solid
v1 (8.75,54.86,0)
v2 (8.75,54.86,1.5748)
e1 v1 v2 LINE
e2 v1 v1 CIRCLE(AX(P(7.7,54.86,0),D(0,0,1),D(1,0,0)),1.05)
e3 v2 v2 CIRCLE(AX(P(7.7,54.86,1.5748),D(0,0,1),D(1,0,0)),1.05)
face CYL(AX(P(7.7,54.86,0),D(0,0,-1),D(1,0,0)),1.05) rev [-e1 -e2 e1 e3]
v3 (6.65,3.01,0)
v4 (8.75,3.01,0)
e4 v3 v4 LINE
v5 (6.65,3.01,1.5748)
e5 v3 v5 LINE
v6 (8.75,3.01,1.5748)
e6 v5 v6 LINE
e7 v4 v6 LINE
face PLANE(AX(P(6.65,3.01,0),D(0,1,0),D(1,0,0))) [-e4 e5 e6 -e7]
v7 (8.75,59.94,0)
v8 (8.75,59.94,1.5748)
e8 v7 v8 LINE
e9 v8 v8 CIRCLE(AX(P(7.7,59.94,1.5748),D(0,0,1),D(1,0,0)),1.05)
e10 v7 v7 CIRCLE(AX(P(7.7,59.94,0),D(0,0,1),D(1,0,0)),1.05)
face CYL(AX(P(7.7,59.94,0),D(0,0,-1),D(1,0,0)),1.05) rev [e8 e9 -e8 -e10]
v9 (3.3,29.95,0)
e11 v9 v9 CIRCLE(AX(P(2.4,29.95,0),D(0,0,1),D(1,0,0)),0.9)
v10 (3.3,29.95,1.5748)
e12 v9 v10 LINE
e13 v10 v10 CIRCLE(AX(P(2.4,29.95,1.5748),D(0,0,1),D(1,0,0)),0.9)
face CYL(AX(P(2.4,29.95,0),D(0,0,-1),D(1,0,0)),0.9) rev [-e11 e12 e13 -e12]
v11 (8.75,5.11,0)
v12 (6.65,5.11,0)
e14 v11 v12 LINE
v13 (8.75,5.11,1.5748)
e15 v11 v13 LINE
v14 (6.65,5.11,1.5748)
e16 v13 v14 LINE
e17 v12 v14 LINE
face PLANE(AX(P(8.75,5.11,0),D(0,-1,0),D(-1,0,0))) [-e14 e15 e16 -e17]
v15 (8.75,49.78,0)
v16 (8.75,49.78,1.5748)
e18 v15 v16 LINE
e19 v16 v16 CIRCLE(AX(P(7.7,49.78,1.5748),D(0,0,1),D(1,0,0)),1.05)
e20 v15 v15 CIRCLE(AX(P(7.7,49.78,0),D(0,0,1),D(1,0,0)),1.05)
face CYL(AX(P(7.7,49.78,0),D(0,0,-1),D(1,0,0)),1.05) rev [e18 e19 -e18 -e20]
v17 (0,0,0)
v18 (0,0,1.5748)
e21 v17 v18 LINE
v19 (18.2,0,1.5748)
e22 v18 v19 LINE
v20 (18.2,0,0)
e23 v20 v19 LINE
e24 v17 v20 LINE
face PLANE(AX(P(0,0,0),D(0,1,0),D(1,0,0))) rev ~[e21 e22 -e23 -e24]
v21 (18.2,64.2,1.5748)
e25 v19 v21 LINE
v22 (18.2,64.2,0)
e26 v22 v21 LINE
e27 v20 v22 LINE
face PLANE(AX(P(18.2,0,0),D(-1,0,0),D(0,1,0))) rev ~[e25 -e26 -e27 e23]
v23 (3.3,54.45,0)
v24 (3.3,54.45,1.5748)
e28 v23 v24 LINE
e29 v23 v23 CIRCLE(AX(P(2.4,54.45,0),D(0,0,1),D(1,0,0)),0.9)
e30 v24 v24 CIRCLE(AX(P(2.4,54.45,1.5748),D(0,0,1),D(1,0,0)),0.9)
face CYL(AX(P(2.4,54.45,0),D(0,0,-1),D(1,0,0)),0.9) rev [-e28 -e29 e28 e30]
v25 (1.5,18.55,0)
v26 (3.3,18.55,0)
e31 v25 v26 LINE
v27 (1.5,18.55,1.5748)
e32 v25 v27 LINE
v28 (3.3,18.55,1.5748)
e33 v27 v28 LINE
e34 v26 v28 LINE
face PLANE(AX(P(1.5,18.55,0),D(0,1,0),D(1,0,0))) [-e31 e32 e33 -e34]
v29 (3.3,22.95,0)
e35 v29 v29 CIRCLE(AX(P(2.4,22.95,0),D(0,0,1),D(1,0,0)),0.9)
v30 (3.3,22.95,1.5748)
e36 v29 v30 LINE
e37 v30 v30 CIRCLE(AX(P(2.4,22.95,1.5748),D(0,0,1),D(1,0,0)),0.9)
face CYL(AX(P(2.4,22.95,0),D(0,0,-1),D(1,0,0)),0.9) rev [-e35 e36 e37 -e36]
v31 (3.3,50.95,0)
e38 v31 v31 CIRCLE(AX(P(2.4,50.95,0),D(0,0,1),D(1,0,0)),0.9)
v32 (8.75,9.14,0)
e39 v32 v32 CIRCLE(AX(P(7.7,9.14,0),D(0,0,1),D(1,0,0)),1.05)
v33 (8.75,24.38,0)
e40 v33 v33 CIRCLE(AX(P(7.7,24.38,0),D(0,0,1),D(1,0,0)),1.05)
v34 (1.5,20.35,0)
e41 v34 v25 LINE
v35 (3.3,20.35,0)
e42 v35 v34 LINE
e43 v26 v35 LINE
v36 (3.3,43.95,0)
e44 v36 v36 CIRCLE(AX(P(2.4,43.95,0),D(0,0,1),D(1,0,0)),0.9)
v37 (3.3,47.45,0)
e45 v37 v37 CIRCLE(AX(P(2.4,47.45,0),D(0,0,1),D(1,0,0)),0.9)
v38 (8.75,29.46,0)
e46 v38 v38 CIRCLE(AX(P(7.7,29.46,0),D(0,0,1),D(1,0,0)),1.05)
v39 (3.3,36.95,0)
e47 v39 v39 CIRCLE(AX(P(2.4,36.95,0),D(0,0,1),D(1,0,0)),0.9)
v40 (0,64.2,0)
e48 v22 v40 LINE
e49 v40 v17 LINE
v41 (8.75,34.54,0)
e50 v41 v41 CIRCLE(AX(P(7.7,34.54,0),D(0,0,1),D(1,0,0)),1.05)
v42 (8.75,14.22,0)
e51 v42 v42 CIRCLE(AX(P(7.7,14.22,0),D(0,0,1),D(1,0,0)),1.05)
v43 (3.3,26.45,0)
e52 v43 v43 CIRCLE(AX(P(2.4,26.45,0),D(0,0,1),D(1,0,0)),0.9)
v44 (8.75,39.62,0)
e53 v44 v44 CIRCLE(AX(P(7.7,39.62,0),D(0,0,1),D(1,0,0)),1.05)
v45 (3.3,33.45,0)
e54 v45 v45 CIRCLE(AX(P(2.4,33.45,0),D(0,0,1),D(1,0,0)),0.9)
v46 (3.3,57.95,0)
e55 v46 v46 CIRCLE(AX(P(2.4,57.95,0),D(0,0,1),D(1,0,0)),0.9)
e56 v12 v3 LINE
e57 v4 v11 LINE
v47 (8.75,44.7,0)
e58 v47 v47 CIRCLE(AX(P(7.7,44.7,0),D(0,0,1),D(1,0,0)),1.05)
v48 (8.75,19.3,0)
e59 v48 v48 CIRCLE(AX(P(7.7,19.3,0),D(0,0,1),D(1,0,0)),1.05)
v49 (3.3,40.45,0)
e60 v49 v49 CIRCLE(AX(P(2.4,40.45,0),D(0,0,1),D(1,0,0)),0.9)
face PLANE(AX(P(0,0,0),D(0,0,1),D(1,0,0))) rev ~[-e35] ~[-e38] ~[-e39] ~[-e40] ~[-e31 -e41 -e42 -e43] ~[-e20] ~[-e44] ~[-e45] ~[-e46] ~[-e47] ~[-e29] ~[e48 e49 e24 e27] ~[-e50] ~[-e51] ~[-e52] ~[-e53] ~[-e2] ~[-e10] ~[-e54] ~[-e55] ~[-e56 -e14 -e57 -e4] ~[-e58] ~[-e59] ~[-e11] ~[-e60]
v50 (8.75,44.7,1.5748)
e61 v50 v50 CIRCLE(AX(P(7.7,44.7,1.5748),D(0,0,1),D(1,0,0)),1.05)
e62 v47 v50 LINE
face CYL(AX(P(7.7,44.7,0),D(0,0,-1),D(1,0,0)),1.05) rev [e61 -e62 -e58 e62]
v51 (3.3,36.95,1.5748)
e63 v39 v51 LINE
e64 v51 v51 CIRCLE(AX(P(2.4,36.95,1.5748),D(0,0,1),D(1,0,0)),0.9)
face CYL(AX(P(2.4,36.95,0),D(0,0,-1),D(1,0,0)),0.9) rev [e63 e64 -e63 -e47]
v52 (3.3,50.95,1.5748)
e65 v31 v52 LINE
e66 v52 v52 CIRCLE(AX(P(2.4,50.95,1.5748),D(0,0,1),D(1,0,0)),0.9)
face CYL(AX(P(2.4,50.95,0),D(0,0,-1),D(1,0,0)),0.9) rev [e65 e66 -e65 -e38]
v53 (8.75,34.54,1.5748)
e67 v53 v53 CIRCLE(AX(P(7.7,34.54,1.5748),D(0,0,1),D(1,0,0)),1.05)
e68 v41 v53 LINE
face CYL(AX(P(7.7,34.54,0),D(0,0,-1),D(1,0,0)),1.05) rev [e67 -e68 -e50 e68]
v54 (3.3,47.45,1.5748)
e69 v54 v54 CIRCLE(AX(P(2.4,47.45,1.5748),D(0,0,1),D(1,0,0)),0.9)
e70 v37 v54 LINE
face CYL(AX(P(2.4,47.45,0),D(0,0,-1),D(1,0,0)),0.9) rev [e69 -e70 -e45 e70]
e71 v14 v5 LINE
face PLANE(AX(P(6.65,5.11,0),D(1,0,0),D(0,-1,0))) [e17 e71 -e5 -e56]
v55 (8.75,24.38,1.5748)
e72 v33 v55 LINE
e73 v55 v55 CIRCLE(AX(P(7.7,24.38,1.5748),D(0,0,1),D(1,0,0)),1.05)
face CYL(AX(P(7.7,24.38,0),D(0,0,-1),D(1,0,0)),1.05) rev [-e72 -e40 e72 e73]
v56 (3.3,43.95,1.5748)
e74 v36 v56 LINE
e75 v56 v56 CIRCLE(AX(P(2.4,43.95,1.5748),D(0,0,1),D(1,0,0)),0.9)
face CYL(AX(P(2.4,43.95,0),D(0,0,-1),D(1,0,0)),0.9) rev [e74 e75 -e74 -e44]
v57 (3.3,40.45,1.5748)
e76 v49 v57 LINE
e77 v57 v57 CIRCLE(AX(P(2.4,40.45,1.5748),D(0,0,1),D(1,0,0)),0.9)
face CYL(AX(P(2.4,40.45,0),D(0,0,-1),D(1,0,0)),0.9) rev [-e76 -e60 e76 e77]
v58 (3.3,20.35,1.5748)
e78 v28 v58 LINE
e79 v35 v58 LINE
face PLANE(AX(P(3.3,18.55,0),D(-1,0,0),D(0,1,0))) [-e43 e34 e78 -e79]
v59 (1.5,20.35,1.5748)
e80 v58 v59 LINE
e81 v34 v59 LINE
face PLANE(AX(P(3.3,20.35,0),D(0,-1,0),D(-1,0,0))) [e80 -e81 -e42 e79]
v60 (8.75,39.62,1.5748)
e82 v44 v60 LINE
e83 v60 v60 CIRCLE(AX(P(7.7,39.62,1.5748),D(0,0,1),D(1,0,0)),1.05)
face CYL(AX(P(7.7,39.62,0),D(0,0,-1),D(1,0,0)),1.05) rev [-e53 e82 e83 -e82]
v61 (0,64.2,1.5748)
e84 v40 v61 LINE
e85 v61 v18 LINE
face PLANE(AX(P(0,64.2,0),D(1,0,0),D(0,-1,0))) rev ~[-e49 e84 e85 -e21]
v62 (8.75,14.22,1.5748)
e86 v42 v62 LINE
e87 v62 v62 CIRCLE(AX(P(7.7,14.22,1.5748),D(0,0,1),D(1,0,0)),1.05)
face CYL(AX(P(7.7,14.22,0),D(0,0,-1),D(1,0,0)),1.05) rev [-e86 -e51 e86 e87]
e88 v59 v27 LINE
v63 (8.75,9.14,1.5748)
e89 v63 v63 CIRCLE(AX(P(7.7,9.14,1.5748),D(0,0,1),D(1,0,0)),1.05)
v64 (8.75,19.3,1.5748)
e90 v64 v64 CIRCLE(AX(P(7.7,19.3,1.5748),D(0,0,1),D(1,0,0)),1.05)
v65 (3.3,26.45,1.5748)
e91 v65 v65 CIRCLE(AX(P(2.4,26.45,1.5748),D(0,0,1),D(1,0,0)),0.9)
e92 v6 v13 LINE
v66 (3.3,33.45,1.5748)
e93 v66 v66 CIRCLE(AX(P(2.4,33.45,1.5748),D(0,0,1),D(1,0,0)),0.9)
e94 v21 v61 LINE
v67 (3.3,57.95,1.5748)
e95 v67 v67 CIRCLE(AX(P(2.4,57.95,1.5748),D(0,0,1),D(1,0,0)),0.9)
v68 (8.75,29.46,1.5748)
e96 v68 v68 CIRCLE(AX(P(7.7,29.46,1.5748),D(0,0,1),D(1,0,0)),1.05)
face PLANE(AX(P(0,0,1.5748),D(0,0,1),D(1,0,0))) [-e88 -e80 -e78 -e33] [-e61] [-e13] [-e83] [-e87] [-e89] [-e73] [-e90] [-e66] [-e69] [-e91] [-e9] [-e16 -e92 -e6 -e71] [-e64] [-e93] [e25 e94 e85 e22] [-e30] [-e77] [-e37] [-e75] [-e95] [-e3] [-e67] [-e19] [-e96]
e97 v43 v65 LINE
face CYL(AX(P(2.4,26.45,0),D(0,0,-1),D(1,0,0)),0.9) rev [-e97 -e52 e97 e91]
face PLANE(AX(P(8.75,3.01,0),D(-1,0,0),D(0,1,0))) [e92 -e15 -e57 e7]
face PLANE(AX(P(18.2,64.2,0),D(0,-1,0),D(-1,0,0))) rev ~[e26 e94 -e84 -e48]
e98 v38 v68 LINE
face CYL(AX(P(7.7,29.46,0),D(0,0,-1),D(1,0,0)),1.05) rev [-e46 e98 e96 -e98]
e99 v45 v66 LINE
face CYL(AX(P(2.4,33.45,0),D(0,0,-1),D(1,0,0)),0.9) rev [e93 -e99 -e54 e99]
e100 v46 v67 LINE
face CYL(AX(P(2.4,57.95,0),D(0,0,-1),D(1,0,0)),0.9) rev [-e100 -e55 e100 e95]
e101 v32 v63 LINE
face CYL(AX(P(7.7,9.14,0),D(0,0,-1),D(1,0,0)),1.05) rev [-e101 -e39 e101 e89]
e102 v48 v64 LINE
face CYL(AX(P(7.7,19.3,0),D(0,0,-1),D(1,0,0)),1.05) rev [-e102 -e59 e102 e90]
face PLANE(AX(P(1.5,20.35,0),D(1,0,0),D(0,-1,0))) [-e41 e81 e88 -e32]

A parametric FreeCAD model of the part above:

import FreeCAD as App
import Part
import Sketcher
from FreeCAD import Vector

doc = App.newDocument("Part")
body = doc.addObject("PartDesign::Body", "Body")

# Sketch on XY plane
sketch1 = body.newObject("Sketcher::SketchObject", "Sketch")
sketch1.AttachmentSupport = (doc.getObject("XY_Plane"), [""])
sketch1.MapMode = "FlatFace"
sketch1.addGeometry(Part.LineSegment(Vector(18.2, 0, 0), Vector(18.2, 64.2, 0)), False)
sketch1.addGeometry(Part.LineSegment(Vector(18.2, 64.2, 0), Vector(0, 64.2, 0)), False)
sketch1.addGeometry(Part.LineSegment(Vector(0, 64.2, 0), Vector(0, 0, 0)), False)
sketch1.addGeometry(Part.LineSegment(Vector(0, 0, 0), Vector(18.2, 0, 0)), False)
sketch1.addGeometry(Part.LineSegment(Vector(8.8, 3, 0), Vector(6.7, 3, 0)), False)
sketch1.addGeometry(Part.LineSegment(Vector(6.7, 3, 0), Vector(6.7, 5.1, 0)), False)
sketch1.addGeometry(Part.LineSegment(Vector(6.7, 5.1, 0), Vector(8.8, 5.1, 0)), False)
sketch1.addGeometry(Part.LineSegment(Vector(8.8, 5.1, 0), Vector(8.8, 3, 0)), False)
sketch1.addGeometry(Part.Circle(Vector(7.7, 9.1, 0), Vector(0, 0, 1), 1.1), False)
sketch1.addGeometry(Part.Circle(Vector(7.7, 14.2, 0), Vector(0, 0, 1), 1.1), False)
sketch1.addGeometry(Part.LineSegment(Vector(3.3, 18.6, 0), Vector(1.5, 18.6, 0)), False)
sketch1.addGeometry(Part.LineSegment(Vector(1.5, 18.6, 0), Vector(1.5, 20.4, 0)), False)
sketch1.addGeometry(Part.LineSegment(Vector(1.5, 20.4, 0), Vector(3.3, 20.4, 0)), False)
sketch1.addGeometry(Part.LineSegment(Vector(3.3, 20.4, 0), Vector(3.3, 18.6, 0)), False)
sketch1.addGeometry(Part.Circle(Vector(2.4, 22.9, 0), Vector(0, 0, 1), 0.9), False)
sketch1.addGeometry(Part.Circle(Vector(2.4, 26.4, 0), Vector(0, 0, 1), 0.9), False)
sketch1.addGeometry(Part.Circle(Vector(2.4, 29.9, 0), Vector(0, 0, 1), 0.9), False)
sketch1.addGeometry(Part.Circle(Vector(7.7, 19.3, 0), Vector(0, 0, 1), 1.1), False)
sketch1.addGeometry(Part.Circle(Vector(7.7, 24.4, 0), Vector(0, 0, 1), 1.1), False)
sketch1.addGeometry(Part.Circle(Vector(7.7, 29.5, 0), Vector(0, 0, 1), 1.1), False)
sketch1.addGeometry(Part.Circle(Vector(2.4, 33.5, 0), Vector(0, 0, 1), 0.9), False)
sketch1.addGeometry(Part.Circle(Vector(2.4, 37, 0), Vector(0, 0, 1), 0.9), False)
sketch1.addGeometry(Part.Circle(Vector(2.4, 40.5, 0), Vector(0, 0, 1), 0.9), False)
sketch1.addGeometry(Part.Circle(Vector(2.4, 44, 0), Vector(0, 0, 1), 0.9), False)
sketch1.addGeometry(Part.Circle(Vector(2.4, 47.5, 0), Vector(0, 0, 1), 0.9), False)
sketch1.addGeometry(Part.Circle(Vector(7.7, 34.5, 0), Vector(0, 0, 1), 1.1), False)
sketch1.addGeometry(Part.Circle(Vector(7.7, 39.6, 0), Vector(0, 0, 1), 1.1), False)
sketch1.addGeometry(Part.Circle(Vector(7.7, 44.7, 0), Vector(0, 0, 1), 1.1), False)
sketch1.addGeometry(Part.Circle(Vector(2.4, 51, 0), Vector(0, 0, 1), 0.9), False)
sketch1.addGeometry(Part.Circle(Vector(2.4, 54.5, 0), Vector(0, 0, 1), 0.9), False)
sketch1.addGeometry(Part.Circle(Vector(2.4, 58, 0), Vector(0, 0, 1), 0.9), False)
sketch1.addGeometry(Part.Circle(Vector(7.7, 49.8, 0), Vector(0, 0, 1), 1.1), False)
sketch1.addGeometry(Part.Circle(Vector(7.7, 54.9, 0), Vector(0, 0, 1), 1.1), False)
sketch1.addGeometry(Part.Circle(Vector(7.7, 59.9, 0), Vector(0, 0, 1), 1.1), False)
sketch1.addConstraint(Sketcher.Constraint("Coincident", 0, 2, 1, 1))
sketch1.addConstraint(Sketcher.Constraint("Coincident", 1, 2, 2, 1))
sketch1.addConstraint(Sketcher.Constraint("Coincident", 2, 2, 3, 1))
sketch1.addConstraint(Sketcher.Constraint("Coincident", 3, 2, 0, 1))
sketch1.addConstraint(Sketcher.Constraint("Coincident", 4, 2, 5, 1))
sketch1.addConstraint(Sketcher.Constraint("Coincident", 5, 2, 6, 1))
sketch1.addConstraint(Sketcher.Constraint("Coincident", 6, 2, 7, 1))
sketch1.addConstraint(Sketcher.Constraint("Coincident", 7, 2, 4, 1))
sketch1.addConstraint(Sketcher.Constraint("Coincident", 10, 2, 11, 1))
sketch1.addConstraint(Sketcher.Constraint("Coincident", 11, 2, 12, 1))
sketch1.addConstraint(Sketcher.Constraint("Coincident", 12, 2, 13, 1))
sketch1.addConstraint(Sketcher.Constraint("Coincident", 13, 2, 10, 1))
sketch1.addConstraint(Sketcher.Constraint("Vertical", 0))
sketch1.addConstraint(Sketcher.Constraint("Horizontal", 1))
sketch1.addConstraint(Sketcher.Constraint("Vertical", 2))
sketch1.addConstraint(Sketcher.Constraint("Horizontal", 3))
sketch1.addConstraint(Sketcher.Constraint("Horizontal", 4))
sketch1.addConstraint(Sketcher.Constraint("Vertical", 5))
sketch1.addConstraint(Sketcher.Constraint("Horizontal", 6))
sketch1.addConstraint(Sketcher.Constraint("Vertical", 7))
sketch1.addConstraint(Sketcher.Constraint("Horizontal", 10))
sketch1.addConstraint(Sketcher.Constraint("Vertical", 11))
sketch1.addConstraint(Sketcher.Constraint("Horizontal", 12))
sketch1.addConstraint(Sketcher.Constraint("Vertical", 13))
sketch1.addConstraint(Sketcher.Constraint("Coincident", 2, 2, -1, 1))
sketch1.addConstraint(Sketcher.Constraint("Equal", 8, 9))
sketch1.addConstraint(Sketcher.Constraint("Equal", 14, 15))
sketch1.addConstraint(Sketcher.Constraint("Equal", 15, 16))
sketch1.addConstraint(Sketcher.Constraint("Equal", 9, 17))
sketch1.addConstraint(Sketcher.Constraint("Equal", 17, 18))
sketch1.addConstraint(Sketcher.Constraint("Equal", 18, 19))
sketch1.addConstraint(Sketcher.Constraint("Equal", 16, 20))
sketch1.addConstraint(Sketcher.Constraint("Equal", 20, 21))
sketch1.addConstraint(Sketcher.Constraint("Equal", 21, 22))
sketch1.addConstraint(Sketcher.Constraint("Equal", 22, 23))
sketch1.addConstraint(Sketcher.Constraint("Equal", 23, 24))
sketch1.addConstraint(Sketcher.Constraint("Equal", 19, 25))
sketch1.addConstraint(Sketcher.Constraint("Equal", 25, 26))
sketch1.addConstraint(Sketcher.Constraint("Equal", 26, 27))
sketch1.addConstraint(Sketcher.Constraint("Equal", 24, 28))
sketch1.addConstraint(Sketcher.Constraint("Equal", 28, 29))
sketch1.addConstraint(Sketcher.Constraint("Equal", 29, 30))
sketch1.addConstraint(Sketcher.Constraint("Equal", 27, 31))
sketch1.addConstraint(Sketcher.Constraint("Equal", 31, 32))
sketch1.addConstraint(Sketcher.Constraint("Equal", 32, 33))
sketch1.addConstraint(Sketcher.Constraint("Vertical", 8, 3, 9, 3))
sketch1.addConstraint(Sketcher.Constraint("Vertical", 14, 3, 15, 3))
sketch1.addConstraint(Sketcher.Constraint("Vertical", 15, 3, 16, 3))
sketch1.addConstraint(Sketcher.Constraint("Vertical", 9, 3, 17, 3))
sketch1.addConstraint(Sketcher.Constraint("Vertical", 17, 3, 18, 3))
sketch1.addConstraint(Sketcher.Constraint("Vertical", 18, 3, 19, 3))
sketch1.addConstraint(Sketcher.Constraint("Vertical", 16, 3, 20, 3))
sketch1.addConstraint(Sketcher.Constraint("Vertical", 20, 3, 21, 3))
sketch1.addConstraint(Sketcher.Constraint("Vertical", 21, 3, 22, 3))
sketch1.addConstraint(Sketcher.Constraint("Vertical", 22, 3, 23, 3))
sketch1.addConstraint(Sketcher.Constraint("Vertical", 23, 3, 24, 3))
sketch1.addConstraint(Sketcher.Constraint("Vertical", 19, 3, 25, 3))
sketch1.addConstraint(Sketcher.Constraint("Vertical", 25, 3, 26, 3))
sketch1.addConstraint(Sketcher.Constraint("Vertical", 26, 3, 27, 3))
sketch1.addConstraint(Sketcher.Constraint("Vertical", 24, 3, 28, 3))
sketch1.addConstraint(Sketcher.Constraint("Vertical", 28, 3, 29, 3))
sketch1.addConstraint(Sketcher.Constraint("Vertical", 29, 3, 30, 3))
sketch1.addConstraint(Sketcher.Constraint("Vertical", 27, 3, 31, 3))
sketch1.addConstraint(Sketcher.Constraint("Vertical", 31, 3, 32, 3))
sketch1.addConstraint(Sketcher.Constraint("Vertical", 32, 3, 33, 3))
sketch1.addConstraint(Sketcher.Constraint("Equal", 6, 5))
sketch1.addConstraint(Sketcher.Constraint("Equal", 12, 11))
sketch1.addConstraint(Sketcher.Constraint("Diameter", 8, 2.1))
sketch1.addConstraint(Sketcher.Constraint("Diameter", 14, 1.8))
sketch1.addConstraint(Sketcher.Constraint("DistanceX", 1, 2, 1, 1, 18.2))
sketch1.addConstraint(Sketcher.Constraint("DistanceX", 4, 2, 4, 1, 2.1))
sketch1.addConstraint(Sketcher.Constraint("DistanceX", 10, 2, 10, 1, 1.8))
sketch1.addConstraint(Sketcher.Constraint("DistanceY", 0, 1, 0, 2, 64.2))
sketch1.addConstraint(Sketcher.Constraint("DistanceY", 14, 3, 16, 3, 7.0))
sketch1.addConstraint(Sketcher.Constraint("DistanceY", 15, 3, 20, 3, 7.0))
sketch1.addConstraint(Sketcher.Constraint("DistanceY", 16, 3, 21, 3, 7.0))
sketch1.addConstraint(Sketcher.Constraint("DistanceY", 20, 3, 22, 3, 7.0))
sketch1.addConstraint(Sketcher.Constraint("DistanceY", 21, 3, 23, 3, 7.0))
sketch1.addConstraint(Sketcher.Constraint("DistanceY", 22, 3, 24, 3, 7.0))
sketch1.addConstraint(Sketcher.Constraint("DistanceY", 23, 3, 28, 3, 7.0))
sketch1.addConstraint(Sketcher.Constraint("DistanceY", 24, 3, 29, 3, 7.0))
sketch1.addConstraint(Sketcher.Constraint("DistanceY", 28, 3, 30, 3, 7.0))
sketch1.addConstraint(Sketcher.Constraint("DistanceX", -1, 1, 8, 3, 7.7))
sketch1.addConstraint(Sketcher.Constraint("DistanceX", -1, 1, 14, 3, 2.4))
sketch1.addConstraint(Sketcher.Constraint("DistanceY", -1, 1, 17, 3, 19.3))
sketch1.addConstraint(Sketcher.Constraint("DistanceY", -1, 1, 27, 3, 44.7))
sketch1.addConstraint(Sketcher.Constraint("DistanceX", -1, 1, 10, 2, 1.5))
sketch1.addConstraint(Sketcher.Constraint("DistanceY", 14, 3, 15, 3, 3.5))
sketch1.addConstraint(Sketcher.Constraint("DistanceY", 10, 2, 14, 3, 4.4))
sketch1.addConstraint(Sketcher.Constraint("DistanceY", -1, 1, 8, 3, 9.14))
sketch1.addConstraint(Sketcher.Constraint("DistanceY", -1, 1, 9, 3, 14.22))
sketch1.addConstraint(Sketcher.Constraint("DistanceY", -1, 1, 14, 3, 22.95))
sketch1.addConstraint(Sketcher.Constraint("DistanceY", -1, 1, 18, 3, 24.38))
sketch1.addConstraint(Sketcher.Constraint("DistanceY", -1, 1, 19, 3, 29.46))
sketch1.addConstraint(Sketcher.Constraint("DistanceY", -1, 1, 25, 3, 34.54))
sketch1.addConstraint(Sketcher.Constraint("DistanceY", -1, 1, 26, 3, 39.62))
sketch1.addConstraint(Sketcher.Constraint("DistanceY", -1, 1, 31, 3, 49.78))
sketch1.addConstraint(Sketcher.Constraint("DistanceY", -1, 1, 32, 3, 54.86))
sketch1.addConstraint(Sketcher.Constraint("DistanceY", -1, 1, 33, 3, 59.94))
sketch1.addConstraint(Sketcher.Constraint("DistanceX", -1, 1, 4, 2, 6.65))
sketch1.addConstraint(Sketcher.Constraint("DistanceY", -1, 1, 4, 2, 3.01))
pad1 = body.newObject("PartDesign::Pad", "Pad")
pad1.Profile = sketch1
pad1.Length = 1.5748

doc.recompute()
